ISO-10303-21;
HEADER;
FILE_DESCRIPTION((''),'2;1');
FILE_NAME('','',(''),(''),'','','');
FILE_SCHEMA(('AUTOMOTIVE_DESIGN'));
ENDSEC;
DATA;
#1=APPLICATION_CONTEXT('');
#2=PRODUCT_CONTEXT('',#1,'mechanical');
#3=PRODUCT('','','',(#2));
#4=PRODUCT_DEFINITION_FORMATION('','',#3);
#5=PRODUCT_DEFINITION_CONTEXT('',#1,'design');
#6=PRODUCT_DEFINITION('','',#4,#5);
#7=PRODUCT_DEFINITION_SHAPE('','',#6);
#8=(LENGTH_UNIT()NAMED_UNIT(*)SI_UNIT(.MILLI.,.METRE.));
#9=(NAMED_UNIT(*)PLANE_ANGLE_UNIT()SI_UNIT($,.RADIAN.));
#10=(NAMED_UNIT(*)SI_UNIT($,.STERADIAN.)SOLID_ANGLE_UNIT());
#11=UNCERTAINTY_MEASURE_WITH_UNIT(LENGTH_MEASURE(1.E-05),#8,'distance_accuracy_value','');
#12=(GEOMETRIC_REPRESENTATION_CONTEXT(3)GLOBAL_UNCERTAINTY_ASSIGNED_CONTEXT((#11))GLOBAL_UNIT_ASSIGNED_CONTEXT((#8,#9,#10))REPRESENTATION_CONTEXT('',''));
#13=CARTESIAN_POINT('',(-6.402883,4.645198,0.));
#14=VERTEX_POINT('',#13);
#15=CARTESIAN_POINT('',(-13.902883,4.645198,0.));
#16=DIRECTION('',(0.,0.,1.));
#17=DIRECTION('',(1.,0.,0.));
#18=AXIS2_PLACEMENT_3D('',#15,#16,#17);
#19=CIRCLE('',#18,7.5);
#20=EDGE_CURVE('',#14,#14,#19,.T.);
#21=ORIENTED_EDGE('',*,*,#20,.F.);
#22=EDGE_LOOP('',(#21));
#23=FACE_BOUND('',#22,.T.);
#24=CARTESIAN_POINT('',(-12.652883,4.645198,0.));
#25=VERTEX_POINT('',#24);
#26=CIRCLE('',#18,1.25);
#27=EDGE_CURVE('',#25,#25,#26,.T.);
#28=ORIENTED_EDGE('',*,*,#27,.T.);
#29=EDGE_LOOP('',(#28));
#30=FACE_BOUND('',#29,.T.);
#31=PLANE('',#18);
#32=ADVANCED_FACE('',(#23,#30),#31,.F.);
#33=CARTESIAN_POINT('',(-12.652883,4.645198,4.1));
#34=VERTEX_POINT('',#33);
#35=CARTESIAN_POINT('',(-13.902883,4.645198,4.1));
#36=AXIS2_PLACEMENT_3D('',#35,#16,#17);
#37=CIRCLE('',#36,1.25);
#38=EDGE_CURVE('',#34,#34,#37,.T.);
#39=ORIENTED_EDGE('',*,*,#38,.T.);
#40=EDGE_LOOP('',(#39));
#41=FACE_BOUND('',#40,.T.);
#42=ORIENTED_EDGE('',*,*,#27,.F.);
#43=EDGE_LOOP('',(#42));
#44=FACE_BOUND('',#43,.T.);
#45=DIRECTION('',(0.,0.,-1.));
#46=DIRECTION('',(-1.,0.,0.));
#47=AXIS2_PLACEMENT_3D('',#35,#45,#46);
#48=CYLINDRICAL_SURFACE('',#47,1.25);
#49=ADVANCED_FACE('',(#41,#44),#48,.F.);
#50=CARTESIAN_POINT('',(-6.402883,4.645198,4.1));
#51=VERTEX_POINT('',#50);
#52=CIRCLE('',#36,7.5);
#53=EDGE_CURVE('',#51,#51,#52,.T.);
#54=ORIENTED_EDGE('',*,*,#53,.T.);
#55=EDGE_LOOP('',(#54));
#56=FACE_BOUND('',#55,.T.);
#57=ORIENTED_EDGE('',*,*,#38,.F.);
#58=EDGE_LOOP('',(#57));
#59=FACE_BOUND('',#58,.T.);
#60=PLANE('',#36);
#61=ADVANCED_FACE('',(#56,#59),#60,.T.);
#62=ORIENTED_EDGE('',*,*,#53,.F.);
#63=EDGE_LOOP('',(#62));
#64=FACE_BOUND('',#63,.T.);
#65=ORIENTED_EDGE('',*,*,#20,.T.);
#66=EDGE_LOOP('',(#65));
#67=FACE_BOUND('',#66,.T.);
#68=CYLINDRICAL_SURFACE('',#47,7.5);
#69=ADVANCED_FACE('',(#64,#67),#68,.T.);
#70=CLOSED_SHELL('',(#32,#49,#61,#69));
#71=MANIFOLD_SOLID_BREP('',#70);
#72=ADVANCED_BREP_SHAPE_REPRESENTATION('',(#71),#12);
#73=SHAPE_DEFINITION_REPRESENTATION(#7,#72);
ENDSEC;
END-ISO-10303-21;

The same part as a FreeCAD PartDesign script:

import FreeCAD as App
import Part
import Sketcher
from FreeCAD import Vector

doc = App.newDocument("Part")
body = doc.addObject("PartDesign::Body", "Body")

sketch1 = body.newObject("Sketcher::SketchObject", "Sketch")
sketch1.AttachmentSupport = (doc.getObject("XY_Plane"), [""])
sketch1.MapMode = "FlatFace"
sketch1.addGeometry(Part.Circle(Vector(-13.902883, 4.645198, 0), Vector(0, 0, 1), 7.5), False)
sketch1.addGeometry(Part.Circle(Vector(-13.902883, 4.645198, 0), Vector(0, 0, 1), 1.25), False)
sketch1.addConstraint(Sketcher.Constraint("Coincident", 1, 3, 0, 3))
sketch1.addConstraint(Sketcher.Constraint("Diameter", 0, 15.0))
sketch1.addConstraint(Sketcher.Constraint("Diameter", 1, 2.5))
sketch1.addConstraint(Sketcher.Constraint("DistanceY", -1, 1, 0, 3, 4.645198))
sketch1.addConstraint(Sketcher.Constraint("DistanceX", 0, 3, -1, 1, 13.902883))
pad1 = body.newObject("PartDesign::Pad", "Pad")
pad1.Profile = sketch1
pad1.Length = 4.1

doc.recompute()
